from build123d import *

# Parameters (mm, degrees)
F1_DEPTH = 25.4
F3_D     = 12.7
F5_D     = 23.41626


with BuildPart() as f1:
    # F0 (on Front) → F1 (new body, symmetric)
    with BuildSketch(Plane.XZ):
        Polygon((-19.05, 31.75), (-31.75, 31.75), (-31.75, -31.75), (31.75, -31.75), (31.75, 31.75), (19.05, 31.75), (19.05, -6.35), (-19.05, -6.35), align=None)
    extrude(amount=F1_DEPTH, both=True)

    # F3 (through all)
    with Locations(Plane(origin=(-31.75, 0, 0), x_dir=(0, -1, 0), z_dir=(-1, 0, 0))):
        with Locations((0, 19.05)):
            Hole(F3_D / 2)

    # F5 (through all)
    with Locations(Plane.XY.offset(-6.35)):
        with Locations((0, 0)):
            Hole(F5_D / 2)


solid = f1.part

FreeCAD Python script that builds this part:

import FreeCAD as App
import Part
import Sketcher
from FreeCAD import Vector
Q = App.Units.Quantity


def add_polygon(sketch, points):
    """Adds a closed chain of lines whose ends are joined by coincident constraints."""
    first, n = sketch.GeometryCount, len(points)
    for a, b in zip(points, points[1:] + points[:1]):
        sketch.addGeometry(Part.LineSegment(App.Vector(*a, 0), App.Vector(*b, 0)), False)
    for i in range(n):
        sketch.addConstraint(Sketcher.Constraint("Coincident", first + i, 2, first + (i + 1) % n, 1))

doc = App.newDocument("Part")
body = doc.addObject("PartDesign::Body", "Body")

# Sketch on XZ plane
sketch1 = body.newObject("Sketcher::SketchObject", "Sketch")
sketch1.AttachmentSupport = (doc.getObject("XZ_Plane"), [""])
sketch1.MapMode = "FlatFace"
add_polygon(sketch1, [(-19, 32), (-32, 32), (-32, -32), (32, -32), (32, 32), (19, 32), (19, -6), (-19, -6)])  # lines 0-7
sketch1.addConstraint([
    Sketcher.Constraint("Horizontal", 0),
    Sketcher.Constraint("Vertical", 1),
    Sketcher.Constraint("Horizontal", 2),
    Sketcher.Constraint("Vertical", 3),
    Sketcher.Constraint("Horizontal", 4),
    Sketcher.Constraint("Vertical", 5),
    Sketcher.Constraint("Horizontal", 6),
    Sketcher.Constraint("Vertical", 7),
    Sketcher.Constraint("Symmetric", 0, 2, 2, 2, -1, 1),
    Sketcher.Constraint("Symmetric", 4, 2, 7, 2, -2),
    Sketcher.Constraint("Equal", 2, 1),
    Sketcher.Constraint("Equal", 6, 5),
    Sketcher.Constraint("DistanceX", 0, 2, 0, 1, Q("0.5 in")),
    Sketcher.Constraint("DistanceX", 2, 1, 2, 2, Q("2.5 in")),
])
pad1 = body.newObject("PartDesign::Pad", "Pad")
pad1.Profile = sketch1
pad1.Length = Q("2 in")
pad1.Midplane = True

# Sketch on YZ plane
sketch2 = body.newObject("Sketcher::SketchObject", "Sketch001")
sketch2.AttachmentSupport = (doc.getObject("YZ_Plane"), [""])
sketch2.MapMode = "FlatFace"
sketch2.AttachmentOffset = App.Placement(Vector(0, 0, -1.25 * 25.4), App.Rotation())
sketch2.addGeometry(Part.Circle(Vector(0, 19, 0), Vector(0, 0, 1), 6), False)
sketch2.addConstraint([
    Sketcher.Constraint("PointOnObject", 0, 3, -2),
    Sketcher.Constraint("Diameter", 0, Q("0.5 in")),
    Sketcher.Constraint("DistanceY", -1, 1, 0, 3, Q("0.75 in")),
])
doc.recompute()
hole = body.newObject("PartDesign::Hole", "Hole")
hole.Profile = sketch2
hole.ThreadType = "None"
hole.Diameter = Q("0.5 in")
hole.DepthType = "ThroughAll"
hole.Reversed = True

# Sketch on XY plane
sketch3 = body.newObject("Sketcher::SketchObject", "Sketch002")
sketch3.AttachmentSupport = (doc.getObject("XY_Plane"), [""])
sketch3.MapMode = "FlatFace"
sketch3.AttachmentOffset = App.Placement(Vector(0, 0, -0.25 * 25.4), App.Rotation())
sketch3.addGeometry(Part.Circle(Vector(0, 0, 0), Vector(0, 0, 1), 12), False)
sketch3.addConstraint([
    Sketcher.Constraint("Coincident", 0, 3, -1, 1),
    Sketcher.Constraint("Diameter", 0, Q("0.9219 in")),
])
doc.recompute()
hole2 = body.newObject("PartDesign::Hole", "Hole001")
hole2.Profile = sketch3
hole2.ThreadType = "None"
hole2.Diameter = Q("0.9219 in")
hole2.DepthType = "ThroughAll"

doc.recompute()
